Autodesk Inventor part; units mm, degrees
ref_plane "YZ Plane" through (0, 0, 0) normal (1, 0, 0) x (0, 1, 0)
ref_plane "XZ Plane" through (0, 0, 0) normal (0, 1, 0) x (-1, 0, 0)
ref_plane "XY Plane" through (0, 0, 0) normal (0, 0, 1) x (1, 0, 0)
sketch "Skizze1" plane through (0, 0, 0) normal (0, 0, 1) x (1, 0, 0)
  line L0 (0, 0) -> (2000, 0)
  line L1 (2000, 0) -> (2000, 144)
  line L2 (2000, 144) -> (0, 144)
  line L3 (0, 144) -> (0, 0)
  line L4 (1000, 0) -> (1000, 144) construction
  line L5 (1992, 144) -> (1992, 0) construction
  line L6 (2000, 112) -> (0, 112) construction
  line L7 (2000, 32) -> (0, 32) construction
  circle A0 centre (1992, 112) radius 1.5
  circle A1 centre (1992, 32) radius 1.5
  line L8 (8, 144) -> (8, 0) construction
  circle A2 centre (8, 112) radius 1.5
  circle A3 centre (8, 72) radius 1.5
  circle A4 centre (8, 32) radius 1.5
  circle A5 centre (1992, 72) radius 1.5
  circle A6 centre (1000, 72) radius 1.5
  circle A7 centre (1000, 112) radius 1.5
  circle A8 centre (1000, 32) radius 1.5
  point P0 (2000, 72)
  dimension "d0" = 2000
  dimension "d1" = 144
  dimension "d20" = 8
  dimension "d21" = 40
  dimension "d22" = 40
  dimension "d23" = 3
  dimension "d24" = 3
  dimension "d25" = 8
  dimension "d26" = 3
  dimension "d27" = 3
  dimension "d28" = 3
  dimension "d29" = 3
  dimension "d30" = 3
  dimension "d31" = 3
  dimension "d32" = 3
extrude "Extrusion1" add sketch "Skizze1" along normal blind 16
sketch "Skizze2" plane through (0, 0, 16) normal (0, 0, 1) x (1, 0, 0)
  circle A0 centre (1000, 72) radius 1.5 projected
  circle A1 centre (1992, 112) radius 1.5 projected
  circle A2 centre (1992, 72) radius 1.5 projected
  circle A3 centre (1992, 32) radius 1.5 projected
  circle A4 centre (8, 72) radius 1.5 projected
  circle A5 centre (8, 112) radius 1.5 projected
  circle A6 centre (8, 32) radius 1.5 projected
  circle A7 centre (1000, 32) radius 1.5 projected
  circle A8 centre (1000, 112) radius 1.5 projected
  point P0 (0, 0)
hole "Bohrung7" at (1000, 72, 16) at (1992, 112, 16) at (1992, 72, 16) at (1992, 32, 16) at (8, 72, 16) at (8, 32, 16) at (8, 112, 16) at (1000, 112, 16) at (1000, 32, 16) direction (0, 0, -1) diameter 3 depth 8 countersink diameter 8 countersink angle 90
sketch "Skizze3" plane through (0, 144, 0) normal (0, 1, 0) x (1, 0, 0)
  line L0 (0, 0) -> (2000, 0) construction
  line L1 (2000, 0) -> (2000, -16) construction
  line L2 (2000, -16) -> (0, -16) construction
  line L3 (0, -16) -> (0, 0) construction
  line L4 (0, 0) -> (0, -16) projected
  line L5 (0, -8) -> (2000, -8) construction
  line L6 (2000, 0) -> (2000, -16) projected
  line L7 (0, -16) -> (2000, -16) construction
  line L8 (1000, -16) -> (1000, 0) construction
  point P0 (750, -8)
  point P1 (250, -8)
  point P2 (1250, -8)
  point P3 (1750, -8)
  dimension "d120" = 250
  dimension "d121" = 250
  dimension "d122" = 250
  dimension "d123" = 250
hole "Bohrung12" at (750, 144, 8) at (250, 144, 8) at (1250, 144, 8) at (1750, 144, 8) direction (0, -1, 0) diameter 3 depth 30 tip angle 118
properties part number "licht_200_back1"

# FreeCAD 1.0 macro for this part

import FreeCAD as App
import Part
import Sketcher
from FreeCAD import Vector
Q = App.Units.Quantity

doc = App.newDocument("Part")
body = doc.addObject("PartDesign::Body", "Body")

# Sketch on XY plane
sketch1 = doc.addObject("Sketcher::SketchObject", "Sketch")
body.addObject(sketch1)
sketch1.AttachmentSupport = (doc.XY_Plane, [""])
sketch1.MapMode = "FlatFace"
sketch1.addGeometry([
    Part.LineSegment(Vector(0, 144, 0), Vector(0, 0, 0)),  # 0
    Part.LineSegment(Vector(0, 0, 0), Vector(2000, 0, 0)),  # 1
    Part.LineSegment(Vector(2000, 0, 0), Vector(2000, 144, 0)),  # 2
    Part.LineSegment(Vector(2000, 144, 0), Vector(0, 144, 0)),  # 3
    Part.Circle(Vector(8, 32, 0), Vector(0, 0, 1), 1.5),  # 4
    Part.Circle(Vector(1000, 32, 0), Vector(0, 0, 1), 1.5),  # 5
    Part.Circle(Vector(1992, 32, 0), Vector(0, 0, 1), 1.5),  # 6
    Part.Circle(Vector(8, 72, 0), Vector(0, 0, 1), 1.5),  # 7
    Part.Circle(Vector(8, 112, 0), Vector(0, 0, 1), 1.5),  # 8
    Part.Circle(Vector(1000, 72, 0), Vector(0, 0, 1), 1.5),  # 9
    Part.Circle(Vector(1992, 72, 0), Vector(0, 0, 1), 1.5),  # 10
    Part.Circle(Vector(1000, 112, 0), Vector(0, 0, 1), 1.5),  # 11
    Part.Circle(Vector(1992, 112, 0), Vector(0, 0, 1), 1.5),  # 12
], False)
sketch1.addConstraint([
    Sketcher.Constraint("Coincident", 0, 2, 1, 1),
    Sketcher.Constraint("Coincident", 1, 2, 2, 1),
    Sketcher.Constraint("Coincident", 2, 2, 3, 1),
    Sketcher.Constraint("Coincident", 3, 2, 0, 1),
    Sketcher.Constraint("Vertical", 0),
    Sketcher.Constraint("Horizontal", 1),
    Sketcher.Constraint("Vertical", 2),
    Sketcher.Constraint("Horizontal", 3),
    Sketcher.Constraint("Coincident", 0, 2, -1, 1),
    Sketcher.Constraint("Equal", 4, 5),
    Sketcher.Constraint("Equal", 5, 6),
    Sketcher.Constraint("Equal", 6, 7),
    Sketcher.Constraint("Equal", 7, 8),
    Sketcher.Constraint("Equal", 8, 9),
    Sketcher.Constraint("Equal", 9, 10),
    Sketcher.Constraint("Equal", 10, 11),
    Sketcher.Constraint("Equal", 11, 12),
    Sketcher.Constraint("Horizontal", 4, 3, 5, 3),
    Sketcher.Constraint("Horizontal", 5, 3, 6, 3),
    Sketcher.Constraint("Horizontal", 7, 3, 9, 3),
    Sketcher.Constraint("Horizontal", 9, 3, 10, 3),
    Sketcher.Constraint("Horizontal", 8, 3, 11, 3),
    Sketcher.Constraint("Horizontal", 11, 3, 12, 3),
    Sketcher.Constraint("Vertical", 4, 3, 7, 3),
    Sketcher.Constraint("Vertical", 7, 3, 8, 3),
    Sketcher.Constraint("Vertical", 5, 3, 9, 3),
    Sketcher.Constraint("Vertical", 6, 3, 10, 3),
    Sketcher.Constraint("Vertical", 9, 3, 11, 3),
    Sketcher.Constraint("Vertical", 10, 3, 12, 3),
    Sketcher.Constraint("Diameter", 4, Q("3 mm")),
    Sketcher.Constraint("DistanceX", 1, 1, 1, 2, Q("2000 mm")),
    Sketcher.Constraint("DistanceY", 0, 2, 0, 1, Q("144 mm")),
    Sketcher.Constraint("DistanceX", -1, 1, 4, 3, Q("8 mm")),
    Sketcher.Constraint("DistanceY", 4, 3, 7, 3, Q("40 mm")),
    Sketcher.Constraint("DistanceY", 7, 3, 8, 3, Q("40 mm")),
    Sketcher.Constraint("DistanceX", 6, 3, 1, 2, Q("8 mm")),
    Sketcher.Constraint("DistanceY", -1, 1, 4, 3, Q("32 mm")),
    Sketcher.Constraint("DistanceX", -1, 1, 5, 3, Q("1000 mm")),
])
pad1 = doc.addObject("PartDesign::Pad", "Pad")
body.addObject(pad1)
pad1.Profile = sketch1
pad1.Length = 16

# Sketch on XY plane
sketch2 = doc.addObject("Sketcher::SketchObject", "Sketch001")
body.addObject(sketch2)
sketch2.AttachmentSupport = (doc.XY_Plane, [""])
sketch2.MapMode = "FlatFace"
sketch2.AttachmentOffset = App.Placement(Vector(0, 0, 16), App.Rotation())
sketch2.addGeometry([
    Part.Circle(Vector(1000, 72, 0), Vector(0, 0, 1), 1.5),  # 0
    Part.Circle(Vector(1992, 112, 0), Vector(0, 0, 1), 1.5),  # 1
    Part.Circle(Vector(1992, 72, 0), Vector(0, 0, 1), 1.5),  # 2
    Part.Circle(Vector(1992, 32, 0), Vector(0, 0, 1), 1.5),  # 3
    Part.Circle(Vector(8, 72, 0), Vector(0, 0, 1), 1.5),  # 4
    Part.Circle(Vector(8, 32, 0), Vector(0, 0, 1), 1.5),  # 5
    Part.Circle(Vector(8, 112, 0), Vector(0, 0, 1), 1.5),  # 6
    Part.Circle(Vector(1000, 112, 0), Vector(0, 0, 1), 1.5),  # 7
    Part.Circle(Vector(1000, 32, 0), Vector(0, 0, 1), 1.5),  # 8
], False)
sketch2.addConstraint([
    Sketcher.Constraint("Equal", 0, 1),
    Sketcher.Constraint("Equal", 1, 2),
    Sketcher.Constraint("Equal", 2, 3),
    Sketcher.Constraint("Equal", 3, 4),
    Sketcher.Constraint("Equal", 4, 5),
    Sketcher.Constraint("Equal", 5, 6),
    Sketcher.Constraint("Equal", 6, 7),
    Sketcher.Constraint("Equal", 7, 8),
    Sketcher.Constraint("Horizontal", 0, 3, 2, 3),
    Sketcher.Constraint("Horizontal", 2, 3, 4, 3),
    Sketcher.Constraint("Horizontal", 3, 3, 5, 3),
    Sketcher.Constraint("Horizontal", 1, 3, 6, 3),
    Sketcher.Constraint("Horizontal", 6, 3, 7, 3),
    Sketcher.Constraint("Horizontal", 5, 3, 8, 3),
    Sketcher.Constraint("Vertical", 1, 3, 2, 3),
    Sketcher.Constraint("Vertical", 2, 3, 3, 3),
    Sketcher.Constraint("Vertical", 4, 3, 5, 3),
    Sketcher.Constraint("Vertical", 5, 3, 6, 3),
    Sketcher.Constraint("Vertical", 0, 3, 7, 3),
    Sketcher.Constraint("Vertical", 7, 3, 8, 3),
    Sketcher.Constraint("Diameter", 0, Q("3 mm")),
    Sketcher.Constraint("DistanceX", -1, 1, 0, 3, Q("1000 mm")),
    Sketcher.Constraint("DistanceY", -1, 1, 0, 3, Q("72 mm")),
    Sketcher.Constraint("DistanceX", -1, 1, 1, 3, Q("1992 mm")),
    Sketcher.Constraint("DistanceY", -1, 1, 1, 3, Q("112 mm")),
    Sketcher.Constraint("DistanceY", -1, 1, 3, 3, Q("32 mm")),
    Sketcher.Constraint("DistanceX", -1, 1, 4, 3, Q("8 mm")),
])
doc.recompute()
hole = doc.addObject("PartDesign::Hole", "Hole")
body.addObject(hole)
hole.Profile = sketch2
hole.ThreadType = "None"
hole.Diameter = 3
hole.DepthType = "Dimension"
hole.Depth = 8
hole.DrillPoint = "Flat"
hole.HoleCutType = "Countersink"
hole.HoleCutDiameter = 8
hole.HoleCutCountersinkAngle = 90

# Sketch on XZ plane
sketch3 = doc.addObject("Sketcher::SketchObject", "Sketch002")
body.addObject(sketch3)
sketch3.AttachmentSupport = (doc.XZ_Plane, [""])
sketch3.MapMode = "FlatFace"
sketch3.AttachmentOffset = App.Placement(Vector(0, 0, -144), App.Rotation())
sketch3.addGeometry([
    Part.Circle(Vector(750, 8, 0), Vector(0, 0, 1), 1.5),
    Part.Circle(Vector(250, 8, 0), Vector(0, 0, 1), 1.5),
    Part.Circle(Vector(1250, 8, 0), Vector(0, 0, 1), 1.5),
    Part.Circle(Vector(1750, 8, 0), Vector(0, 0, 1), 1.5),
], False)
sketch3.addConstraint([
    Sketcher.Constraint("Equal", 0, 1),
    Sketcher.Constraint("Equal", 1, 2),
    Sketcher.Constraint("Equal", 2, 3),
    Sketcher.Constraint("Horizontal", 0, 3, 1, 3),
    Sketcher.Constraint("Horizontal", 1, 3, 2, 3),
    Sketcher.Constraint("Horizontal", 2, 3, 3, 3),
    Sketcher.Constraint("Diameter", 0, Q("3 mm")),
    Sketcher.Constraint("DistanceX", -1, 1, 0, 3, Q("750 mm")),
    Sketcher.Constraint("DistanceY", -1, 1, 0, 3, Q("8 mm")),
    Sketcher.Constraint("DistanceX", -1, 1, 1, 3, Q("250 mm")),
    Sketcher.Constraint("DistanceX", -1, 1, 2, 3, Q("1250 mm")),
    Sketcher.Constraint("DistanceX", -1, 1, 3, 3, Q("1750 mm")),
])
doc.recompute()
hole2 = doc.addObject("PartDesign::Hole", "Hole001")
body.addObject(hole2)
hole2.Profile = sketch3
hole2.ThreadType = "None"
hole2.Diameter = 3
hole2.DepthType = "Dimension"
hole2.Depth = 30
hole2.DrillPoint = "Angled"
hole2.DrillPointAngle = 118
hole2.Reversed = True

doc.recompute()
